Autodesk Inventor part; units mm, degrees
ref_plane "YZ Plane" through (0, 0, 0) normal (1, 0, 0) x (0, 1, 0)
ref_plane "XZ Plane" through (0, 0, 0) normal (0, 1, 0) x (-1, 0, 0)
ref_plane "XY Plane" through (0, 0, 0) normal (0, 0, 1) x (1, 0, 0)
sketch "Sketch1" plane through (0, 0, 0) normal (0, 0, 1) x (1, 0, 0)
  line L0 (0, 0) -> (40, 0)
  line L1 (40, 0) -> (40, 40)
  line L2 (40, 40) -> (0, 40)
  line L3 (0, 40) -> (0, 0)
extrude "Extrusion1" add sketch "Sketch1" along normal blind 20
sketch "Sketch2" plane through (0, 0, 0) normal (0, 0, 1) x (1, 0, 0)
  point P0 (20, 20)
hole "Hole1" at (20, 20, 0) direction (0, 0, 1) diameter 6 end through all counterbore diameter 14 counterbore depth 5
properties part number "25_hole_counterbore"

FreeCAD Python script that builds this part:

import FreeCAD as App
import Part
import Sketcher
from FreeCAD import Vector


def add_polygon(sketch, points):
    """Adds a closed chain of lines whose ends are joined by coincident constraints."""
    first, n = sketch.GeometryCount, len(points)
    for a, b in zip(points, points[1:] + points[:1]):
        sketch.addGeometry(Part.LineSegment(App.Vector(*a, 0), App.Vector(*b, 0)), False)
    for i in range(n):
        sketch.addConstraint(Sketcher.Constraint("Coincident", first + i, 2, first + (i + 1) % n, 1))

doc = App.newDocument("Part")
body = doc.addObject("PartDesign::Body", "Body")

# Sketch on XY plane
sketch1 = body.newObject("Sketcher::SketchObject", "Sketch")
sketch1.AttachmentSupport = (doc.getObject("XY_Plane"), [""])
sketch1.MapMode = "FlatFace"
add_polygon(sketch1, [(0, 40), (0, 0), (40, 0), (40, 40)])  # lines 0-3
sketch1.addConstraint(Sketcher.Constraint("Vertical", 0))
sketch1.addConstraint(Sketcher.Constraint("Horizontal", 1))
sketch1.addConstraint(Sketcher.Constraint("Vertical", 2))
sketch1.addConstraint(Sketcher.Constraint("Horizontal", 3))
sketch1.addConstraint(Sketcher.Constraint("Coincident", 0, 2, -1, 1))
sketch1.addConstraint(Sketcher.Constraint("Equal", 3, 0))
sketch1.addConstraint(Sketcher.Constraint("DistanceX", 1, 1, 1, 2, 40.0))
pad1 = body.newObject("PartDesign::Pad", "Pad")
pad1.Profile = sketch1
pad1.Length = 20

# Sketch on XY plane
sketch2 = body.newObject("Sketcher::SketchObject", "Sketch001")
sketch2.AttachmentSupport = (doc.getObject("XY_Plane"), [""])
sketch2.MapMode = "FlatFace"
sketch2.addGeometry(Part.Circle(Vector(20, 20, 0), Vector(0, 0, 1), 3), False)
sketch2.addConstraint(Sketcher.Constraint("Diameter", 0, 6.0))
sketch2.addConstraint(Sketcher.Constraint("DistanceX", -1, 1, 0, 3, 20.0))
sketch2.addConstraint(Sketcher.Constraint("DistanceY", -1, 1, 0, 3, 20.0))
doc.recompute()
hole = body.newObject("PartDesign::Hole", "Hole")
hole.Profile = sketch2
hole.ThreadType = "None"
hole.Diameter = 6
hole.DepthType = "ThroughAll"
hole.HoleCutType = "Counterbore"
hole.HoleCutDiameter = 14
hole.HoleCutDepth = 5
hole.Reversed = True

doc.recompute()
